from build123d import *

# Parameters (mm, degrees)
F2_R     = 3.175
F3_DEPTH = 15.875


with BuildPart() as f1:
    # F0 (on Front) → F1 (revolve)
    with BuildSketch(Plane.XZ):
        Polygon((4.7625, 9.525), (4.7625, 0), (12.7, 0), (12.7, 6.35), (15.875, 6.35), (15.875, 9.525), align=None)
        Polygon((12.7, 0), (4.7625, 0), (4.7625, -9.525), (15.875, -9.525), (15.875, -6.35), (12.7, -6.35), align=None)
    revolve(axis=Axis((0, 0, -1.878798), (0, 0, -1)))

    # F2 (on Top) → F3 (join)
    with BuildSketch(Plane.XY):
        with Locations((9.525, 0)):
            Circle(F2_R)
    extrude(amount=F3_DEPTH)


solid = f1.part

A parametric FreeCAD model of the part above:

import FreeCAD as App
import Part
import Sketcher
from FreeCAD import Vector
Q = App.Units.Quantity

doc = App.newDocument("Part")
body = doc.addObject("PartDesign::Body", "Body")

sketch1 = body.newObject("Sketcher::SketchObject", "Sketch")
sketch1.AttachmentSupport = (doc.getObject("XZ_Plane"), [""])
sketch1.MapMode = "FlatFace"
sketch1.addGeometry([
    Part.LineSegment(Vector(4.7625, 9.525, 0), Vector(4.7625, -9.525, 0)),
    Part.LineSegment(Vector(4.7625, -9.525, 0), Vector(15.875, -9.525, 0)),
    Part.LineSegment(Vector(15.875, -9.525, 0), Vector(15.875, -6.35, 0)),
    Part.LineSegment(Vector(15.875, -6.35, 0), Vector(12.7, -6.35, 0)),
    Part.LineSegment(Vector(12.7, -6.35, 0), Vector(12.7, 6.35, 0)),
    Part.LineSegment(Vector(12.7, 6.35, 0), Vector(15.875, 6.35, 0)),
    Part.LineSegment(Vector(15.875, 6.35, 0), Vector(15.875, 9.525, 0)),
    Part.LineSegment(Vector(15.875, 9.525, 0), Vector(4.7625, 9.525, 0)),
], False)
sketch1.addConstraint([
    Sketcher.Constraint("Coincident", 0, 2, 1, 1),
    Sketcher.Constraint("Coincident", 1, 2, 2, 1),
    Sketcher.Constraint("Coincident", 2, 2, 3, 1),
    Sketcher.Constraint("Coincident", 3, 2, 4, 1),
    Sketcher.Constraint("Coincident", 4, 2, 5, 1),
    Sketcher.Constraint("Coincident", 5, 2, 6, 1),
    Sketcher.Constraint("Coincident", 6, 2, 7, 1),
    Sketcher.Constraint("Coincident", 7, 2, 0, 1),
    Sketcher.Constraint("Vertical", 0),
    Sketcher.Constraint("Horizontal", 1),
    Sketcher.Constraint("Vertical", 2),
    Sketcher.Constraint("Horizontal", 3),
    Sketcher.Constraint("Vertical", 4),
    Sketcher.Constraint("Horizontal", 5),
    Sketcher.Constraint("Vertical", 6),
    Sketcher.Constraint("Horizontal", 7),
    Sketcher.Constraint("Symmetric", 2, 2, 5, 2, -1),
    Sketcher.Constraint("Equal", 5, 2),
    Sketcher.Constraint("Equal", 2, 6),
    Sketcher.Constraint("DistanceY", 4, 1, 4, 2, Q("0.5 in")),
    Sketcher.Constraint("DistanceY", 0, 2, 0, 1, Q("0.75 in")),
    Sketcher.Constraint("DistanceX", -1, 1, 3, 2, Q("0.5 in")),
    Sketcher.Constraint("DistanceX", 1, 1, 1, 2, Q("0.4375 in")),
])
revolution = body.newObject("PartDesign::Revolution", "Revolution")
revolution.Profile = sketch1
revolution.ReferenceAxis = (sketch1, ["V_Axis"])
revolution.Angle = 360

sketch2 = body.newObject("Sketcher::SketchObject", "Sketch001")
sketch2.AttachmentSupport = (doc.getObject("XY_Plane"), [""])
sketch2.MapMode = "FlatFace"
sketch2.addGeometry(Part.Circle(Vector(9.525, 0, 0), Vector(0, 0, 1), 3.175), False)
sketch2.addConstraint([
    Sketcher.Constraint("PointOnObject", 0, 3, -1),
    Sketcher.Constraint("Diameter", 0, Q("0.25 in")),
    Sketcher.Constraint("DistanceX", -1, 1, 0, 3, Q("0.375 in")),
])
pad1 = body.newObject("PartDesign::Pad", "Pad")
pad1.Profile = sketch2
pad1.Length = Q("0.625 in")

doc.recompute()
